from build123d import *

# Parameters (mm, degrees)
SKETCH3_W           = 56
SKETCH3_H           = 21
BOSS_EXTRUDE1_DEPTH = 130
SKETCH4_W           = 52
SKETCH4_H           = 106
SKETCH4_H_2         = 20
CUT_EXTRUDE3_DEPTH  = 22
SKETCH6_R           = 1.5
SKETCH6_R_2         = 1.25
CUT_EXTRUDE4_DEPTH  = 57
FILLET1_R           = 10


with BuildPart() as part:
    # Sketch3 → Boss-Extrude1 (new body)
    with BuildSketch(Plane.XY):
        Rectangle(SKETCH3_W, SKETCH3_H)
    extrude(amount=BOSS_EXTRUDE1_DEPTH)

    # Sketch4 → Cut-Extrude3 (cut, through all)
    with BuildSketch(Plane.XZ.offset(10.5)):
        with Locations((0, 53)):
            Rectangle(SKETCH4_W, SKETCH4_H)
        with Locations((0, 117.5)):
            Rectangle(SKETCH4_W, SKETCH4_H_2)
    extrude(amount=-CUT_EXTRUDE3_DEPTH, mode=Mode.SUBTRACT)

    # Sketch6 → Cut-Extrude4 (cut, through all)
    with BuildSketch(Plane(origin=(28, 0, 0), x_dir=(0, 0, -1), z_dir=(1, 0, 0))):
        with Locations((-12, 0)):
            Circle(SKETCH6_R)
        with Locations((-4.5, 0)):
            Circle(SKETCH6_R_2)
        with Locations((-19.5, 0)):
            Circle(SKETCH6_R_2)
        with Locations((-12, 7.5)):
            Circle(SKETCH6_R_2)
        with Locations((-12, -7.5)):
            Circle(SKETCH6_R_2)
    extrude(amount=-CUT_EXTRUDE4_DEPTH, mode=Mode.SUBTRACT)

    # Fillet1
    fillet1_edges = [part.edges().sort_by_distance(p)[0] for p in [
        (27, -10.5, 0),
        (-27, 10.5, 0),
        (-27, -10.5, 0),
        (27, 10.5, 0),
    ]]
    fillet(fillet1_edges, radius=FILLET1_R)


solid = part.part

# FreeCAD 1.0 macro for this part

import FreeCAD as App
import Part
import Sketcher
Q = App.Units.Quantity


def edges_at(feature, points):
    """Names of the edges that pass closest to the given points."""
    edges = feature.Shape.Edges
    near = lambda p: min(range(len(edges)), key=lambda i: edges[i].distToShape(Part.Vertex(*p))[0])
    return sorted({f"Edge{near(p) + 1}" for p in points})

doc = App.newDocument("Part")
body = doc.addObject("PartDesign::Body", "Body")

# Sketch on XY plane
sketch1 = doc.addObject("Sketcher::SketchObject", "Sketch")
body.addObject(sketch1)
sketch1.AttachmentSupport = (doc.XY_Plane, [""])
sketch1.MapMode = "FlatFace"
sketch1.addGeometry([
    Part.LineSegment(App.Vector(-28, 10, 0), App.Vector(-28, -10, 0)),
    Part.LineSegment(App.Vector(-28, -10, 0), App.Vector(28, -10, 0)),
    Part.LineSegment(App.Vector(28, -10, 0), App.Vector(28, 10, 0)),
    Part.LineSegment(App.Vector(28, 10, 0), App.Vector(-28, 10, 0)),
], False)
sketch1.addConstraint([
    Sketcher.Constraint("Coincident", 0, 2, 1, 1),
    Sketcher.Constraint("Coincident", 1, 2, 2, 1),
    Sketcher.Constraint("Coincident", 2, 2, 3, 1),
    Sketcher.Constraint("Coincident", 3, 2, 0, 1),
    Sketcher.Constraint("Vertical", 0),
    Sketcher.Constraint("Horizontal", 1),
    Sketcher.Constraint("Vertical", 2),
    Sketcher.Constraint("Horizontal", 3),
    Sketcher.Constraint("Symmetric", 0, 2, 2, 2, -1, 1),
    Sketcher.Constraint("DistanceX", 1, 1, 1, 2, Q("56 mm")),
    Sketcher.Constraint("DistanceY", 0, 2, 0, 1, Q("21 mm")),
])
pad1 = doc.addObject("PartDesign::Pad", "Pad")
body.addObject(pad1)
pad1.Profile = sketch1
pad1.Length = 130

# Sketch on XZ plane
sketch2 = doc.addObject("Sketcher::SketchObject", "Sketch001")
body.addObject(sketch2)
sketch2.AttachmentSupport = (doc.XZ_Plane, [""])
sketch2.MapMode = "FlatFace"
sketch2.AttachmentOffset = App.Placement(App.Vector(0, 0, 10.5), App.Rotation())
sketch2.addGeometry([
    Part.LineSegment(App.Vector(-26, 106, 0), App.Vector(-26, 0, 0)),  # 0
    Part.LineSegment(App.Vector(-26, 0, 0), App.Vector(26, 0, 0)),  # 1
    Part.LineSegment(App.Vector(26, 0, 0), App.Vector(26, 106, 0)),  # 2
    Part.LineSegment(App.Vector(26, 106, 0), App.Vector(-26, 106, 0)),  # 3
    Part.LineSegment(App.Vector(-26, 128, 0), App.Vector(-26, 108, 0)),  # 4
    Part.LineSegment(App.Vector(-26, 108, 0), App.Vector(26, 108, 0)),  # 5
    Part.LineSegment(App.Vector(26, 108, 0), App.Vector(26, 128, 0)),  # 6
    Part.LineSegment(App.Vector(26, 128, 0), App.Vector(-26, 128, 0)),  # 7
], False)
sketch2.addConstraint([
    Sketcher.Constraint("Coincident", 0, 2, 1, 1),
    Sketcher.Constraint("Coincident", 1, 2, 2, 1),
    Sketcher.Constraint("Coincident", 2, 2, 3, 1),
    Sketcher.Constraint("Coincident", 3, 2, 0, 1),
    Sketcher.Constraint("Coincident", 4, 2, 5, 1),
    Sketcher.Constraint("Coincident", 5, 2, 6, 1),
    Sketcher.Constraint("Coincident", 6, 2, 7, 1),
    Sketcher.Constraint("Coincident", 7, 2, 4, 1),
    Sketcher.Constraint("Vertical", 0),
    Sketcher.Constraint("Horizontal", 1),
    Sketcher.Constraint("Vertical", 2),
    Sketcher.Constraint("Horizontal", 3),
    Sketcher.Constraint("Vertical", 4),
    Sketcher.Constraint("Horizontal", 5),
    Sketcher.Constraint("Vertical", 6),
    Sketcher.Constraint("Horizontal", 7),
    Sketcher.Constraint("Symmetric", 0, 2, 1, 2, -1, 1),
    Sketcher.Constraint("Vertical", 3, 2, 4, 2),
    Sketcher.Constraint("Vertical", 2, 2, 5, 2),
    Sketcher.Constraint("DistanceX", 1, 1, 1, 2, Q("52 mm")),
    Sketcher.Constraint("DistanceY", 0, 2, 0, 1, Q("106 mm")),
    Sketcher.Constraint("DistanceY", 4, 2, 4, 1, Q("20 mm")),
    Sketcher.Constraint("DistanceY", -1, 1, 4, 2, Q("107.5 mm")),
])
pocket1 = doc.addObject("PartDesign::Pocket", "Pocket")
body.addObject(pocket1)
pocket1.Profile = sketch2
pocket1.Type = "ThroughAll"

# Sketch on YZ plane
sketch3 = doc.addObject("Sketcher::SketchObject", "Sketch002")
body.addObject(sketch3)
sketch3.AttachmentSupport = (doc.YZ_Plane, [""])
sketch3.MapMode = "FlatFace"
sketch3.AttachmentOffset = App.Placement(App.Vector(0, 0, 28), App.Rotation())
sketch3.addGeometry([
    Part.Circle(App.Vector(0, 12, 0), App.Vector(0, 0, 1), 1.5),  # 0
    Part.Circle(App.Vector(0, 4.5, 0), App.Vector(0, 0, 1), 1.2),  # 1
    Part.Circle(App.Vector(0, 19.5, 0), App.Vector(0, 0, 1), 1.2),  # 2
    Part.Circle(App.Vector(7.5, 12, 0), App.Vector(0, 0, 1), 1.2),  # 3
    Part.Circle(App.Vector(-7.5, 12, 0), App.Vector(0, 0, 1), 1.2),  # 4
], False)
sketch3.addConstraint([
    Sketcher.Constraint("Equal", 1, 2),
    Sketcher.Constraint("Equal", 2, 3),
    Sketcher.Constraint("Equal", 3, 4),
    Sketcher.Constraint("Symmetric", 3, 3, 4, 3, -2),
    Sketcher.Constraint("PointOnObject", 0, 3, -2),
    Sketcher.Constraint("PointOnObject", 1, 3, -2),
    Sketcher.Constraint("PointOnObject", 2, 3, -2),
    Sketcher.Constraint("Horizontal", 0, 3, 3, 3),
    Sketcher.Constraint("Diameter", 0, Q("3 mm")),
    Sketcher.Constraint("Diameter", 1, Q("2.5 mm")),
    Sketcher.Constraint("DistanceY", -1, 1, 0, 3, Q("12 mm")),
    Sketcher.Constraint("DistanceY", 1, 3, 2, 3, Q("15 mm")),
    Sketcher.Constraint("DistanceX", 4, 3, 3, 3, Q("15 mm")),
    Sketcher.Constraint("DistanceY", -1, 1, 1, 3, Q("4.5 mm")),
])
pocket2 = doc.addObject("PartDesign::Pocket", "Pocket001")
body.addObject(pocket2)
pocket2.Profile = sketch3
pocket2.Type = "ThroughAll"
doc.recompute()

fillet = doc.addObject("PartDesign::Fillet", "Fillet")
body.addObject(fillet)
fillet.Base = (pocket2, edges_at(pocket2, [
    (27, -10.5, 0),
    (-27, 10.5, 0),
    (-27, -10.5, 0),
    (27, 10.5, 0),
]))
fillet.Radius = 10

doc.recompute()
